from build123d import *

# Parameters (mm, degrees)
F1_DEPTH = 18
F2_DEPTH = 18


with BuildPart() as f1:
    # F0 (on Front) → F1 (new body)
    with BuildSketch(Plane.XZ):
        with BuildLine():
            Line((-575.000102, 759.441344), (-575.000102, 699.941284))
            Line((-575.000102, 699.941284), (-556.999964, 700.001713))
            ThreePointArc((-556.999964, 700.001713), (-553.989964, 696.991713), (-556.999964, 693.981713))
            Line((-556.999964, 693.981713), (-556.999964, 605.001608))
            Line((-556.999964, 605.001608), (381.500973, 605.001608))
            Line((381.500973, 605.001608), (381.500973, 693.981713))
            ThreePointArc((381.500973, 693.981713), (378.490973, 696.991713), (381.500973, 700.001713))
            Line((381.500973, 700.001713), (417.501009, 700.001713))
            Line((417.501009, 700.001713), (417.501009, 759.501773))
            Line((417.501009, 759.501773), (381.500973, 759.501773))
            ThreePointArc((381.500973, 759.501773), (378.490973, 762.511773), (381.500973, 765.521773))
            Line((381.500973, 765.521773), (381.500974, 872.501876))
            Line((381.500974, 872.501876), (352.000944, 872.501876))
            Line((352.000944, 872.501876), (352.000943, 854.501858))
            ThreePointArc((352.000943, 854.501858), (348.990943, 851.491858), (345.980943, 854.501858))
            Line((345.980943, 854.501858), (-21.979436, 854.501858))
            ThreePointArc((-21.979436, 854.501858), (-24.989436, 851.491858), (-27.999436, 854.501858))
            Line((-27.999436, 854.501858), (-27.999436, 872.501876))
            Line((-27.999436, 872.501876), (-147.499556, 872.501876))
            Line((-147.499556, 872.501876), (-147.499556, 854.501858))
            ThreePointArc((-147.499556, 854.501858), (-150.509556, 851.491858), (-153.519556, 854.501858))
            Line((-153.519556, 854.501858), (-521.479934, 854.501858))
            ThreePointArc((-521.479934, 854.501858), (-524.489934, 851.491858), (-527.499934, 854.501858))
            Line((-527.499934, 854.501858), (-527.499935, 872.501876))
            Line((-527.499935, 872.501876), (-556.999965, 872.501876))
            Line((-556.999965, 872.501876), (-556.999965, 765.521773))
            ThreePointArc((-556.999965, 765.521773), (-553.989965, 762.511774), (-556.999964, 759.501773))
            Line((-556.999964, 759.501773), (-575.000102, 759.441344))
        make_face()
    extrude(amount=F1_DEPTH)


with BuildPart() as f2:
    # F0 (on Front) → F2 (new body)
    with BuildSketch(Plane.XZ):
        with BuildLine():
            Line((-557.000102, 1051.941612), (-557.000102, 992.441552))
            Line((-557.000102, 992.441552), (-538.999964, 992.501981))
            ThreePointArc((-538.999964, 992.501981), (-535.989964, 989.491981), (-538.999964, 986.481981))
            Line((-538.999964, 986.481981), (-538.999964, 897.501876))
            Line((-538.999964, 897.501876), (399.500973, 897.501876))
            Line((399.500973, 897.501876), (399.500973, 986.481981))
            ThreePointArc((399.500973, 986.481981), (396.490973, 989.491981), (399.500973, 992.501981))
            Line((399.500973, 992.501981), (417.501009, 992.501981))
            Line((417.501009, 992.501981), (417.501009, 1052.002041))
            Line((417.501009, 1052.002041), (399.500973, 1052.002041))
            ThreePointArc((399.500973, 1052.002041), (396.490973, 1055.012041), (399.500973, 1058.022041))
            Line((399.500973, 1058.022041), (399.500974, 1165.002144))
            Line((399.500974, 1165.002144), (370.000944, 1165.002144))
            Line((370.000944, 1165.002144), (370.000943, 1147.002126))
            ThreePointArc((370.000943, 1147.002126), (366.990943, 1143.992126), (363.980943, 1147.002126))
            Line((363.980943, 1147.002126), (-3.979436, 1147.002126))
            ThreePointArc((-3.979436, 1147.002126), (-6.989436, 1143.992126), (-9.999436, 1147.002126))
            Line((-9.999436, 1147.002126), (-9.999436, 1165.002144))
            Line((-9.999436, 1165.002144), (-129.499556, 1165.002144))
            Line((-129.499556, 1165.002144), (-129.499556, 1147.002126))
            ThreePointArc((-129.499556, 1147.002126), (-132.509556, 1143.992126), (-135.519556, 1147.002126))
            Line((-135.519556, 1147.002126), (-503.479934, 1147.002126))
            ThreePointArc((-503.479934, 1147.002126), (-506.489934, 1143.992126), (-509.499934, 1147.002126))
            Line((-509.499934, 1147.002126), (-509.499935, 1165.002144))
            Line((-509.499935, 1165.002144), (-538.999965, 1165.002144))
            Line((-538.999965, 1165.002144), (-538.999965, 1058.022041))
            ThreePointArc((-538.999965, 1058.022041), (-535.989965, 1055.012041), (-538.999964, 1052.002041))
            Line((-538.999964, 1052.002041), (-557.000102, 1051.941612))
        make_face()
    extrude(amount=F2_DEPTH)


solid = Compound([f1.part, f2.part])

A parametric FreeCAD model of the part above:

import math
import FreeCAD as App
import Part
import Sketcher

V = App.Vector

doc = App.newDocument("Part")
params = doc.addObject("Spreadsheet::Sheet", "Params")
for row, (alias, value) in enumerate([
    ("sketch1_radius", "3.01 mm"),
    ("pad1_length", "18 mm"),
    ("sketch2_radius", "3.01 mm"),
    ("pad2_length", "18 mm"),
], start=1):
    params.set(f"A{row}", alias)
    params.set(f"B{row}", "=" + value)
    params.setAlias(f"B{row}", alias)

body = doc.addObject("PartDesign::Body", "Body")

# Sketch on XZ plane
sketch1 = body.newObject("Sketcher::SketchObject", "Sketch")
sketch1.AttachmentSupport = (doc.getObject("XZ_Plane"), [""])
sketch1.MapMode = "FlatFace"
sketch1.addGeometry(Part.LineSegment(V(-575, 759.4, 0), V(-575, 699.9, 0)), False)
sketch1.addGeometry(Part.LineSegment(V(-575, 699.9, 0), V(-557, 700, 0)), False)
sketch1.addGeometry(Part.ArcOfCircle(Part.Circle(V(-557, 697, 0), V(0, 0, 1), 3), math.radians(-90), math.radians(90)), False)
sketch1.addGeometry(Part.LineSegment(V(-557, 694, 0), V(-557, 605, 0)), False)
sketch1.addGeometry(Part.LineSegment(V(-557, 605, 0), V(381.5, 605, 0)), False)
sketch1.addGeometry(Part.LineSegment(V(381.5, 605, 0), V(381.5, 694, 0)), False)
sketch1.addGeometry(Part.ArcOfCircle(Part.Circle(V(381.5, 697, 0), V(0, 0, 1), 3), math.radians(90), math.radians(270)), False)
sketch1.addGeometry(Part.LineSegment(V(381.5, 700, 0), V(417.5, 700, 0)), False)
sketch1.addGeometry(Part.LineSegment(V(417.5, 700, 0), V(417.5, 759.5, 0)), False)
sketch1.addGeometry(Part.LineSegment(V(417.5, 759.5, 0), V(381.5, 759.5, 0)), False)
sketch1.addGeometry(Part.ArcOfCircle(Part.Circle(V(381.5, 762.5, 0), V(0, 0, 1), 3), math.radians(90), math.radians(270)), False)
sketch1.addGeometry(Part.LineSegment(V(381.5, 765.5, 0), V(381.5, 872.5, 0)), False)
sketch1.addGeometry(Part.LineSegment(V(381.5, 872.5, 0), V(352, 872.5, 0)), False)
sketch1.addGeometry(Part.LineSegment(V(352, 872.5, 0), V(352, 854.5, 0)), False)
sketch1.addGeometry(Part.ArcOfCircle(Part.Circle(V(349, 854.5, 0), V(0, 0, 1), 3), math.radians(180), math.radians(360)), False)
sketch1.addGeometry(Part.LineSegment(V(346, 854.5, 0), V(-22, 854.5, 0)), False)
sketch1.addGeometry(Part.ArcOfCircle(Part.Circle(V(-25, 854.5, 0), V(0, 0, 1), 3), math.radians(180), math.radians(360)), False)
sketch1.addGeometry(Part.LineSegment(V(-28, 854.5, 0), V(-28, 872.5, 0)), False)
sketch1.addGeometry(Part.LineSegment(V(-28, 872.5, 0), V(-147.5, 872.5, 0)), False)
sketch1.addGeometry(Part.LineSegment(V(-147.5, 872.5, 0), V(-147.5, 854.5, 0)), False)
sketch1.addGeometry(Part.ArcOfCircle(Part.Circle(V(-150.5, 854.5, 0), V(0, 0, 1), 3), math.radians(180), math.radians(360)), False)
sketch1.addGeometry(Part.LineSegment(V(-153.5, 854.5, 0), V(-521.5, 854.5, 0)), False)
sketch1.addGeometry(Part.ArcOfCircle(Part.Circle(V(-524.5, 854.5, 0), V(0, 0, 1), 3), math.radians(180), math.radians(360)), False)
sketch1.addGeometry(Part.LineSegment(V(-527.5, 854.5, 0), V(-527.5, 872.5, 0)), False)
sketch1.addGeometry(Part.LineSegment(V(-527.5, 872.5, 0), V(-557, 872.5, 0)), False)
sketch1.addGeometry(Part.LineSegment(V(-557, 872.5, 0), V(-557, 765.5, 0)), False)
sketch1.addGeometry(Part.ArcOfCircle(Part.Circle(V(-557, 762.5, 0), V(0, 0, 1), 3), math.radians(-90), math.radians(90)), False)
sketch1.addGeometry(Part.LineSegment(V(-557, 759.5, 0), V(-575, 759.4, 0)), False)
sketch1.addConstraint(Sketcher.Constraint("Coincident", 0, 2, 1, 1))
sketch1.addConstraint(Sketcher.Constraint("Coincident", 1, 2, 2, 2))
sketch1.addConstraint(Sketcher.Constraint("Coincident", 2, 1, 3, 1))
sketch1.addConstraint(Sketcher.Constraint("Coincident", 3, 2, 4, 1))
sketch1.addConstraint(Sketcher.Constraint("Coincident", 4, 2, 5, 1))
sketch1.addConstraint(Sketcher.Constraint("Coincident", 5, 2, 6, 2))
sketch1.addConstraint(Sketcher.Constraint("Tangent", 6, 1, 7, 1))
sketch1.addConstraint(Sketcher.Constraint("Coincident", 7, 2, 8, 1))
sketch1.addConstraint(Sketcher.Constraint("Coincident", 8, 2, 9, 1))
sketch1.addConstraint(Sketcher.Constraint("Tangent", 9, 2, 10, 2))
sketch1.addConstraint(Sketcher.Constraint("Coincident", 10, 1, 11, 1))
sketch1.addConstraint(Sketcher.Constraint("Coincident", 11, 2, 12, 1))
sketch1.addConstraint(Sketcher.Constraint("Coincident", 12, 2, 13, 1))
sketch1.addConstraint(Sketcher.Constraint("Tangent", 13, 2, 14, 2))
sketch1.addConstraint(Sketcher.Constraint("Coincident", 14, 1, 15, 1))
sketch1.addConstraint(Sketcher.Constraint("Coincident", 15, 2, 16, 2))
sketch1.addConstraint(Sketcher.Constraint("Tangent", 16, 1, 17, 1))
sketch1.addConstraint(Sketcher.Constraint("Coincident", 17, 2, 18, 1))
sketch1.addConstraint(Sketcher.Constraint("Coincident", 18, 2, 19, 1))
sketch1.addConstraint(Sketcher.Constraint("Tangent", 19, 2, 20, 2))
sketch1.addConstraint(Sketcher.Constraint("Coincident", 20, 1, 21, 1))
sketch1.addConstraint(Sketcher.Constraint("Coincident", 21, 2, 22, 2))
sketch1.addConstraint(Sketcher.Constraint("Tangent", 22, 1, 23, 1))
sketch1.addConstraint(Sketcher.Constraint("Coincident", 23, 2, 24, 1))
sketch1.addConstraint(Sketcher.Constraint("Coincident", 24, 2, 25, 1))
sketch1.addConstraint(Sketcher.Constraint("Coincident", 25, 2, 26, 2))
sketch1.addConstraint(Sketcher.Constraint("Coincident", 26, 1, 27, 1))
sketch1.addConstraint(Sketcher.Constraint("Coincident", 27, 2, 0, 1))
sketch1.addConstraint(Sketcher.Constraint("Vertical", 0))
sketch1.addConstraint(Sketcher.Constraint("Vertical", 3))
sketch1.addConstraint(Sketcher.Constraint("Horizontal", 4))
sketch1.addConstraint(Sketcher.Constraint("Vertical", 5))
sketch1.addConstraint(Sketcher.Constraint("Horizontal", 7))
sketch1.addConstraint(Sketcher.Constraint("Vertical", 8))
sketch1.addConstraint(Sketcher.Constraint("Horizontal", 9))
sketch1.addConstraint(Sketcher.Constraint("Vertical", 11))
sketch1.addConstraint(Sketcher.Constraint("Horizontal", 12))
sketch1.addConstraint(Sketcher.Constraint("Vertical", 13))
sketch1.addConstraint(Sketcher.Constraint("Horizontal", 15))
sketch1.addConstraint(Sketcher.Constraint("Vertical", 17))
sketch1.addConstraint(Sketcher.Constraint("Horizontal", 18))
sketch1.addConstraint(Sketcher.Constraint("Vertical", 19))
sketch1.addConstraint(Sketcher.Constraint("Horizontal", 21))
sketch1.addConstraint(Sketcher.Constraint("Vertical", 23))
sketch1.addConstraint(Sketcher.Constraint("Horizontal", 24))
sketch1.addConstraint(Sketcher.Constraint("Vertical", 25))
sketch1.addConstraint(Sketcher.Constraint("Equal", 2, 6))
sketch1.addConstraint(Sketcher.Constraint("Equal", 6, 10))
sketch1.addConstraint(Sketcher.Constraint("Equal", 10, 14))
sketch1.addConstraint(Sketcher.Constraint("Equal", 14, 16))
sketch1.addConstraint(Sketcher.Constraint("Equal", 16, 20))
sketch1.addConstraint(Sketcher.Constraint("Equal", 20, 22))
sketch1.addConstraint(Sketcher.Constraint("Equal", 22, 26))
sketch1.addConstraint(Sketcher.Constraint("Parallel", 1, 27))
sketch1.addConstraint(Sketcher.Constraint("Horizontal", 2, 3, 6, 3))
sketch1.addConstraint(Sketcher.Constraint("Horizontal", 14, 3, 16, 3))
sketch1.addConstraint(Sketcher.Constraint("Horizontal", 16, 3, 20, 3))
sketch1.addConstraint(Sketcher.Constraint("Horizontal", 20, 3, 22, 3))
sketch1.addConstraint(Sketcher.Constraint("Horizontal", 10, 3, 26, 3))
sketch1.addConstraint(Sketcher.Constraint("Horizontal", 13, 2, 14, 1))
sketch1.addConstraint(Sketcher.Constraint("Horizontal", 12, 2, 17, 2))
sketch1.addConstraint(Sketcher.Constraint("Horizontal", 19, 2, 20, 1))
sketch1.addConstraint(Sketcher.Constraint("Horizontal", 18, 2, 23, 2))
sketch1.addConstraint(Sketcher.Constraint("Vertical", 6, 3, 10, 3))
sketch1.addConstraint(Sketcher.Constraint("Vertical", 2, 3, 26, 3))
sketch1.addConstraint(Sketcher.Constraint("Vertical", 26, 3, 1, 2))
sketch1.addConstraint(Sketcher.Constraint("Vertical", 1, 2, 2, 1))
sketch1.addConstraint(Sketcher.Constraint("Vertical", 10, 3, 4, 2))
sketch1.addConstraint(Sketcher.Constraint("Vertical", 9, 2, 10, 1))
sketch1.addConstraint(Sketcher.Constraint("Vertical", 3, 2, 24, 2))
sketch1.addConstraint(Sketcher.Constraint("Vertical", 25, 2, 26, 1))
sketch1.addConstraint(Sketcher.Constraint("Equal", 15, 21))
sketch1.addConstraint(Sketcher.Constraint("Equal", 12, 24))
sketch1.addConstraint(Sketcher.Constraint("Radius", 2, 3.01))
sketch1.addConstraint(Sketcher.Constraint("DistanceX", 12, 2, 12, 1, 29.50003))
sketch1.addConstraint(Sketcher.Constraint("DistanceX", 15, 2, 15, 1, 367.960379))
sketch1.addConstraint(Sketcher.Constraint("DistanceX", 18, 2, 18, 1, 119.50012))
sketch1.addConstraint(Sketcher.Constraint("DistanceY", 0, 2, 0, 1, 59.50006))
sketch1.addConstraint(Sketcher.Constraint("DistanceY", 13, 2, 13, 1, 18.000018))
sketch1.addConstraint(Sketcher.Constraint("DistanceX", 0, 2, -1, 1, 575.000102))
sketch1.addConstraint(Sketcher.Constraint("Distance", 1, 18.000239))
sketch1.addConstraint(Sketcher.Constraint("DistanceX", 7, 1, 7, 2, 36.000036))
sketch1.addConstraint(Sketcher.Constraint("DistanceY", 3, 2, 3, 1, 88.980105))
sketch1.addConstraint(Sketcher.Constraint("DistanceY", 11, 1, 11, 2, 106.980103))
sketch1.addConstraint(Sketcher.Constraint("DistanceY", -1, 1, 14, 3, 854.501858))
sketch1.addConstraint(Sketcher.Constraint("DistanceY", 2, 3, 0, 2, 2.949571))
sketch1.setExpression("Constraints[73]", "Params.sketch1_radius")
pad1 = body.newObject("PartDesign::Pad", "Pad")
pad1.Profile = sketch1
pad1.setExpression("Length", "Params.pad1_length")
body2 = doc.addObject("PartDesign::Body", "Body001")

# Sketch on XZ plane
sketch2 = body2.newObject("Sketcher::SketchObject", "Sketch001")
sketch2.AttachmentSupport = (doc.getObject("XZ_Plane001"), [""])
sketch2.MapMode = "FlatFace"
sketch2.addGeometry(Part.LineSegment(V(-557, 1051.9, 0), V(-557, 992.4, 0)), False)
sketch2.addGeometry(Part.LineSegment(V(-557, 992.4, 0), V(-539, 992.5, 0)), False)
sketch2.addGeometry(Part.ArcOfCircle(Part.Circle(V(-539, 989.5, 0), V(0, 0, 1), 3), math.radians(-90), math.radians(90)), False)
sketch2.addGeometry(Part.LineSegment(V(-539, 986.5, 0), V(-539, 897.5, 0)), False)
sketch2.addGeometry(Part.LineSegment(V(-539, 897.5, 0), V(399.5, 897.5, 0)), False)
sketch2.addGeometry(Part.LineSegment(V(399.5, 897.5, 0), V(399.5, 986.5, 0)), False)
sketch2.addGeometry(Part.ArcOfCircle(Part.Circle(V(399.5, 989.5, 0), V(0, 0, 1), 3), math.radians(90), math.radians(270)), False)
sketch2.addGeometry(Part.LineSegment(V(399.5, 992.5, 0), V(417.5, 992.5, 0)), False)
sketch2.addGeometry(Part.LineSegment(V(417.5, 992.5, 0), V(417.5, 1052, 0)), False)
sketch2.addGeometry(Part.LineSegment(V(417.5, 1052, 0), V(399.5, 1052, 0)), False)
sketch2.addGeometry(Part.ArcOfCircle(Part.Circle(V(399.5, 1055, 0), V(0, 0, 1), 3), math.radians(90), math.radians(270)), False)
sketch2.addGeometry(Part.LineSegment(V(399.5, 1058, 0), V(399.5, 1165, 0)), False)
sketch2.addGeometry(Part.LineSegment(V(399.5, 1165, 0), V(370, 1165, 0)), False)
sketch2.addGeometry(Part.LineSegment(V(370, 1165, 0), V(370, 1147, 0)), False)
sketch2.addGeometry(Part.ArcOfCircle(Part.Circle(V(367, 1147, 0), V(0, 0, 1), 3), math.radians(180), math.radians(360)), False)
sketch2.addGeometry(Part.LineSegment(V(364, 1147, 0), V(-4, 1147, 0)), False)
sketch2.addGeometry(Part.ArcOfCircle(Part.Circle(V(-7, 1147, 0), V(0, 0, 1), 3), math.radians(180), math.radians(360)), False)
sketch2.addGeometry(Part.LineSegment(V(-10, 1147, 0), V(-10, 1165, 0)), False)
sketch2.addGeometry(Part.LineSegment(V(-10, 1165, 0), V(-129.5, 1165, 0)), False)
sketch2.addGeometry(Part.LineSegment(V(-129.5, 1165, 0), V(-129.5, 1147, 0)), False)
sketch2.addGeometry(Part.ArcOfCircle(Part.Circle(V(-132.5, 1147, 0), V(0, 0, 1), 3), math.radians(180), math.radians(360)), False)
sketch2.addGeometry(Part.LineSegment(V(-135.5, 1147, 0), V(-503.5, 1147, 0)), False)
sketch2.addGeometry(Part.ArcOfCircle(Part.Circle(V(-506.5, 1147, 0), V(0, 0, 1), 3), math.radians(180), math.radians(360)), False)
sketch2.addGeometry(Part.LineSegment(V(-509.5, 1147, 0), V(-509.5, 1165, 0)), False)
sketch2.addGeometry(Part.LineSegment(V(-509.5, 1165, 0), V(-539, 1165, 0)), False)
sketch2.addGeometry(Part.LineSegment(V(-539, 1165, 0), V(-539, 1058, 0)), False)
sketch2.addGeometry(Part.ArcOfCircle(Part.Circle(V(-539, 1055, 0), V(0, 0, 1), 3), math.radians(-90), math.radians(90)), False)
sketch2.addGeometry(Part.LineSegment(V(-539, 1052, 0), V(-557, 1051.9, 0)), False)
sketch2.addConstraint(Sketcher.Constraint("Coincident", 0, 2, 1, 1))
sketch2.addConstraint(Sketcher.Constraint("Coincident", 1, 2, 2, 2))
sketch2.addConstraint(Sketcher.Constraint("Coincident", 2, 1, 3, 1))
sketch2.addConstraint(Sketcher.Constraint("Coincident", 3, 2, 4, 1))
sketch2.addConstraint(Sketcher.Constraint("Coincident", 4, 2, 5, 1))
sketch2.addConstraint(Sketcher.Constraint("Coincident", 5, 2, 6, 2))
sketch2.addConstraint(Sketcher.Constraint("Tangent", 6, 1, 7, 1))
sketch2.addConstraint(Sketcher.Constraint("Coincident", 7, 2, 8, 1))
sketch2.addConstraint(Sketcher.Constraint("Coincident", 8, 2, 9, 1))
sketch2.addConstraint(Sketcher.Constraint("Tangent", 9, 2, 10, 2))
sketch2.addConstraint(Sketcher.Constraint("Coincident", 10, 1, 11, 1))
sketch2.addConstraint(Sketcher.Constraint("Coincident", 11, 2, 12, 1))
sketch2.addConstraint(Sketcher.Constraint("Coincident", 12, 2, 13, 1))
sketch2.addConstraint(Sketcher.Constraint("Tangent", 13, 2, 14, 2))
sketch2.addConstraint(Sketcher.Constraint("Coincident", 14, 1, 15, 1))
sketch2.addConstraint(Sketcher.Constraint("Coincident", 15, 2, 16, 2))
sketch2.addConstraint(Sketcher.Constraint("Tangent", 16, 1, 17, 1))
sketch2.addConstraint(Sketcher.Constraint("Coincident", 17, 2, 18, 1))
sketch2.addConstraint(Sketcher.Constraint("Coincident", 18, 2, 19, 1))
sketch2.addConstraint(Sketcher.Constraint("Tangent", 19, 2, 20, 2))
sketch2.addConstraint(Sketcher.Constraint("Coincident", 20, 1, 21, 1))
sketch2.addConstraint(Sketcher.Constraint("Coincident", 21, 2, 22, 2))
sketch2.addConstraint(Sketcher.Constraint("Tangent", 22, 1, 23, 1))
sketch2.addConstraint(Sketcher.Constraint("Coincident", 23, 2, 24, 1))
sketch2.addConstraint(Sketcher.Constraint("Coincident", 24, 2, 25, 1))
sketch2.addConstraint(Sketcher.Constraint("Coincident", 25, 2, 26, 2))
sketch2.addConstraint(Sketcher.Constraint("Coincident", 26, 1, 27, 1))
sketch2.addConstraint(Sketcher.Constraint("Coincident", 27, 2, 0, 1))
sketch2.addConstraint(Sketcher.Constraint("Vertical", 0))
sketch2.addConstraint(Sketcher.Constraint("Vertical", 3))
sketch2.addConstraint(Sketcher.Constraint("Horizontal", 4))
sketch2.addConstraint(Sketcher.Constraint("Vertical", 5))
sketch2.addConstraint(Sketcher.Constraint("Horizontal", 7))
sketch2.addConstraint(Sketcher.Constraint("Vertical", 8))
sketch2.addConstraint(Sketcher.Constraint("Horizontal", 9))
sketch2.addConstraint(Sketcher.Constraint("Vertical", 11))
sketch2.addConstraint(Sketcher.Constraint("Horizontal", 12))
sketch2.addConstraint(Sketcher.Constraint("Vertical", 13))
sketch2.addConstraint(Sketcher.Constraint("Horizontal", 15))
sketch2.addConstraint(Sketcher.Constraint("Vertical", 17))
sketch2.addConstraint(Sketcher.Constraint("Horizontal", 18))
sketch2.addConstraint(Sketcher.Constraint("Vertical", 19))
sketch2.addConstraint(Sketcher.Constraint("Horizontal", 21))
sketch2.addConstraint(Sketcher.Constraint("Vertical", 23))
sketch2.addConstraint(Sketcher.Constraint("Horizontal", 24))
sketch2.addConstraint(Sketcher.Constraint("Vertical", 25))
sketch2.addConstraint(Sketcher.Constraint("Equal", 2, 6))
sketch2.addConstraint(Sketcher.Constraint("Equal", 6, 10))
sketch2.addConstraint(Sketcher.Constraint("Equal", 10, 14))
sketch2.addConstraint(Sketcher.Constraint("Equal", 14, 16))
sketch2.addConstraint(Sketcher.Constraint("Equal", 16, 20))
sketch2.addConstraint(Sketcher.Constraint("Equal", 20, 22))
sketch2.addConstraint(Sketcher.Constraint("Equal", 22, 26))
sketch2.addConstraint(Sketcher.Constraint("Parallel", 1, 27))
sketch2.addConstraint(Sketcher.Constraint("Horizontal", 2, 3, 6, 3))
sketch2.addConstraint(Sketcher.Constraint("Horizontal", 14, 3, 16, 3))
sketch2.addConstraint(Sketcher.Constraint("Horizontal", 16, 3, 20, 3))
sketch2.addConstraint(Sketcher.Constraint("Horizontal", 20, 3, 22, 3))
sketch2.addConstraint(Sketcher.Constraint("Horizontal", 10, 3, 26, 3))
sketch2.addConstraint(Sketcher.Constraint("Horizontal", 13, 2, 14, 1))
sketch2.addConstraint(Sketcher.Constraint("Horizontal", 12, 2, 17, 2))
sketch2.addConstraint(Sketcher.Constraint("Horizontal", 19, 2, 20, 1))
sketch2.addConstraint(Sketcher.Constraint("Horizontal", 18, 2, 23, 2))
sketch2.addConstraint(Sketcher.Constraint("Vertical", 6, 3, 10, 3))
sketch2.addConstraint(Sketcher.Constraint("Vertical", 2, 3, 26, 3))
sketch2.addConstraint(Sketcher.Constraint("Vertical", 26, 3, 1, 2))
sketch2.addConstraint(Sketcher.Constraint("Vertical", 1, 2, 2, 1))
sketch2.addConstraint(Sketcher.Constraint("Vertical", 10, 3, 4, 2))
sketch2.addConstraint(Sketcher.Constraint("Vertical", 9, 2, 10, 1))
sketch2.addConstraint(Sketcher.Constraint("Vertical", 3, 2, 24, 2))
sketch2.addConstraint(Sketcher.Constraint("Vertical", 25, 2, 26, 1))
sketch2.addConstraint(Sketcher.Constraint("Equal", 15, 21))
sketch2.addConstraint(Sketcher.Constraint("Equal", 12, 24))
sketch2.addConstraint(Sketcher.Constraint("Radius", 2, 3.01))
sketch2.addConstraint(Sketcher.Constraint("DistanceX", 12, 2, 12, 1, 29.50003))
sketch2.addConstraint(Sketcher.Constraint("DistanceX", 15, 2, 15, 1, 367.960379))
sketch2.addConstraint(Sketcher.Constraint("DistanceX", 18, 2, 18, 1, 119.50012))
sketch2.addConstraint(Sketcher.Constraint("DistanceY", 0, 2, 0, 1, 59.50006))
sketch2.addConstraint(Sketcher.Constraint("DistanceX", 0, 2, -1, 1, 557.000102))
sketch2.addConstraint(Sketcher.Constraint("Distance", 1, 18.000239))
sketch2.addConstraint(Sketcher.Constraint("DistanceX", 7, 1, 7, 2, 18.000036))
sketch2.addConstraint(Sketcher.Constraint("DistanceY", 3, 2, 3, 1, 88.980105))
sketch2.addConstraint(Sketcher.Constraint("DistanceY", 11, 1, 11, 2, 106.980103))
sketch2.addConstraint(Sketcher.Constraint("DistanceY", 13, 2, 13, 1, 18.000018))
sketch2.addConstraint(Sketcher.Constraint("DistanceY", -1, 1, 2, 3, 989.491981))
sketch2.addConstraint(Sketcher.Constraint("DistanceY", -1, 1, 0, 2, 992.441552))
sketch2.setExpression("Constraints[73]", "Params.sketch2_radius")
pad2 = body2.newObject("PartDesign::Pad", "Pad001")
pad2.Profile = sketch2
pad2.setExpression("Length", "Params.pad2_length")

doc.recompute()
